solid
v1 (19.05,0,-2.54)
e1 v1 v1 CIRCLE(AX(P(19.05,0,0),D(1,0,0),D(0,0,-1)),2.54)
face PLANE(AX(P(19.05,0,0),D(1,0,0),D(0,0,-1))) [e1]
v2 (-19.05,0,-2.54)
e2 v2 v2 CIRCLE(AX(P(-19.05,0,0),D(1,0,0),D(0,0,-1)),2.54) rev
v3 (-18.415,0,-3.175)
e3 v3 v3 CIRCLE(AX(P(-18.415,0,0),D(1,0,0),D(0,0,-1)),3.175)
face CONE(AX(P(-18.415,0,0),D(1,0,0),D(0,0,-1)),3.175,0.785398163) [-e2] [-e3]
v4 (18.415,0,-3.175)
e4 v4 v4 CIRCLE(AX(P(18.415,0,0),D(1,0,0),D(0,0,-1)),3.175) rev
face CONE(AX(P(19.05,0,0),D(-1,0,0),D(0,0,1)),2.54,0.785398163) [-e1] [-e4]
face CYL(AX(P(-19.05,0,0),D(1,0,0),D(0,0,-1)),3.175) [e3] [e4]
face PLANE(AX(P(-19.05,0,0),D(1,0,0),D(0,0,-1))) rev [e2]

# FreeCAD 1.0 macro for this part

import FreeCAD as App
import Part
import Sketcher

V = App.Vector
Q = App.Units.Quantity


def edges_at(feature, points):
    """Names of the edges that pass closest to the given points."""
    edges = feature.Shape.Edges
    near = lambda p: min(range(len(edges)), key=lambda i: edges[i].distToShape(Part.Vertex(*p))[0])
    return sorted({f"Edge{near(p) + 1}" for p in points})

doc = App.newDocument("Part")
params = doc.addObject("Spreadsheet::Sheet", "Params")
for row, (alias, value) in enumerate([
    ("sketch1_diameter", "0.25 in"),
    ("pad1_length", "0.75 in"),
    ("pad1_length2", "0.75 in"),
    ("chamfer_size", "0.025 in"),
], start=1):
    params.set(f"A{row}", alias)
    params.set(f"B{row}", "=" + value)
    params.setAlias(f"B{row}", alias)

body = doc.addObject("PartDesign::Body", "Body")

sketch1 = body.newObject("Sketcher::SketchObject", "Sketch")
sketch1.AttachmentSupport = (doc.getObject("YZ_Plane"), [""])
sketch1.MapMode = "FlatFace"
sketch1.addGeometry(Part.Circle(V(0, 0, 0), V(0, 0, 1), 3.175), False)
sketch1.addConstraint([
    Sketcher.Constraint("Coincident", 0, 3, -1, 1),
    Sketcher.Constraint("Diameter", 0, Q("0.25 in")),
])
sketch1.setExpression("Constraints[1]", "Params.sketch1_diameter")
pad1 = body.newObject("PartDesign::Pad", "Pad")
pad1.Profile = sketch1
pad1.Type = "TwoLengths"
pad1.setExpression("Length", "Params.pad1_length")
pad1.setExpression("Length2", "Params.pad1_length2")
doc.recompute()

chamfer = body.newObject("PartDesign::Chamfer", "Chamfer")
chamfer.Base = (pad1, edges_at(pad1, [(-19.05, 0, 3.175), (19.05, 0, 3.175)]))
chamfer.setExpression("Size", "Params.chamfer_size")

doc.recompute()
